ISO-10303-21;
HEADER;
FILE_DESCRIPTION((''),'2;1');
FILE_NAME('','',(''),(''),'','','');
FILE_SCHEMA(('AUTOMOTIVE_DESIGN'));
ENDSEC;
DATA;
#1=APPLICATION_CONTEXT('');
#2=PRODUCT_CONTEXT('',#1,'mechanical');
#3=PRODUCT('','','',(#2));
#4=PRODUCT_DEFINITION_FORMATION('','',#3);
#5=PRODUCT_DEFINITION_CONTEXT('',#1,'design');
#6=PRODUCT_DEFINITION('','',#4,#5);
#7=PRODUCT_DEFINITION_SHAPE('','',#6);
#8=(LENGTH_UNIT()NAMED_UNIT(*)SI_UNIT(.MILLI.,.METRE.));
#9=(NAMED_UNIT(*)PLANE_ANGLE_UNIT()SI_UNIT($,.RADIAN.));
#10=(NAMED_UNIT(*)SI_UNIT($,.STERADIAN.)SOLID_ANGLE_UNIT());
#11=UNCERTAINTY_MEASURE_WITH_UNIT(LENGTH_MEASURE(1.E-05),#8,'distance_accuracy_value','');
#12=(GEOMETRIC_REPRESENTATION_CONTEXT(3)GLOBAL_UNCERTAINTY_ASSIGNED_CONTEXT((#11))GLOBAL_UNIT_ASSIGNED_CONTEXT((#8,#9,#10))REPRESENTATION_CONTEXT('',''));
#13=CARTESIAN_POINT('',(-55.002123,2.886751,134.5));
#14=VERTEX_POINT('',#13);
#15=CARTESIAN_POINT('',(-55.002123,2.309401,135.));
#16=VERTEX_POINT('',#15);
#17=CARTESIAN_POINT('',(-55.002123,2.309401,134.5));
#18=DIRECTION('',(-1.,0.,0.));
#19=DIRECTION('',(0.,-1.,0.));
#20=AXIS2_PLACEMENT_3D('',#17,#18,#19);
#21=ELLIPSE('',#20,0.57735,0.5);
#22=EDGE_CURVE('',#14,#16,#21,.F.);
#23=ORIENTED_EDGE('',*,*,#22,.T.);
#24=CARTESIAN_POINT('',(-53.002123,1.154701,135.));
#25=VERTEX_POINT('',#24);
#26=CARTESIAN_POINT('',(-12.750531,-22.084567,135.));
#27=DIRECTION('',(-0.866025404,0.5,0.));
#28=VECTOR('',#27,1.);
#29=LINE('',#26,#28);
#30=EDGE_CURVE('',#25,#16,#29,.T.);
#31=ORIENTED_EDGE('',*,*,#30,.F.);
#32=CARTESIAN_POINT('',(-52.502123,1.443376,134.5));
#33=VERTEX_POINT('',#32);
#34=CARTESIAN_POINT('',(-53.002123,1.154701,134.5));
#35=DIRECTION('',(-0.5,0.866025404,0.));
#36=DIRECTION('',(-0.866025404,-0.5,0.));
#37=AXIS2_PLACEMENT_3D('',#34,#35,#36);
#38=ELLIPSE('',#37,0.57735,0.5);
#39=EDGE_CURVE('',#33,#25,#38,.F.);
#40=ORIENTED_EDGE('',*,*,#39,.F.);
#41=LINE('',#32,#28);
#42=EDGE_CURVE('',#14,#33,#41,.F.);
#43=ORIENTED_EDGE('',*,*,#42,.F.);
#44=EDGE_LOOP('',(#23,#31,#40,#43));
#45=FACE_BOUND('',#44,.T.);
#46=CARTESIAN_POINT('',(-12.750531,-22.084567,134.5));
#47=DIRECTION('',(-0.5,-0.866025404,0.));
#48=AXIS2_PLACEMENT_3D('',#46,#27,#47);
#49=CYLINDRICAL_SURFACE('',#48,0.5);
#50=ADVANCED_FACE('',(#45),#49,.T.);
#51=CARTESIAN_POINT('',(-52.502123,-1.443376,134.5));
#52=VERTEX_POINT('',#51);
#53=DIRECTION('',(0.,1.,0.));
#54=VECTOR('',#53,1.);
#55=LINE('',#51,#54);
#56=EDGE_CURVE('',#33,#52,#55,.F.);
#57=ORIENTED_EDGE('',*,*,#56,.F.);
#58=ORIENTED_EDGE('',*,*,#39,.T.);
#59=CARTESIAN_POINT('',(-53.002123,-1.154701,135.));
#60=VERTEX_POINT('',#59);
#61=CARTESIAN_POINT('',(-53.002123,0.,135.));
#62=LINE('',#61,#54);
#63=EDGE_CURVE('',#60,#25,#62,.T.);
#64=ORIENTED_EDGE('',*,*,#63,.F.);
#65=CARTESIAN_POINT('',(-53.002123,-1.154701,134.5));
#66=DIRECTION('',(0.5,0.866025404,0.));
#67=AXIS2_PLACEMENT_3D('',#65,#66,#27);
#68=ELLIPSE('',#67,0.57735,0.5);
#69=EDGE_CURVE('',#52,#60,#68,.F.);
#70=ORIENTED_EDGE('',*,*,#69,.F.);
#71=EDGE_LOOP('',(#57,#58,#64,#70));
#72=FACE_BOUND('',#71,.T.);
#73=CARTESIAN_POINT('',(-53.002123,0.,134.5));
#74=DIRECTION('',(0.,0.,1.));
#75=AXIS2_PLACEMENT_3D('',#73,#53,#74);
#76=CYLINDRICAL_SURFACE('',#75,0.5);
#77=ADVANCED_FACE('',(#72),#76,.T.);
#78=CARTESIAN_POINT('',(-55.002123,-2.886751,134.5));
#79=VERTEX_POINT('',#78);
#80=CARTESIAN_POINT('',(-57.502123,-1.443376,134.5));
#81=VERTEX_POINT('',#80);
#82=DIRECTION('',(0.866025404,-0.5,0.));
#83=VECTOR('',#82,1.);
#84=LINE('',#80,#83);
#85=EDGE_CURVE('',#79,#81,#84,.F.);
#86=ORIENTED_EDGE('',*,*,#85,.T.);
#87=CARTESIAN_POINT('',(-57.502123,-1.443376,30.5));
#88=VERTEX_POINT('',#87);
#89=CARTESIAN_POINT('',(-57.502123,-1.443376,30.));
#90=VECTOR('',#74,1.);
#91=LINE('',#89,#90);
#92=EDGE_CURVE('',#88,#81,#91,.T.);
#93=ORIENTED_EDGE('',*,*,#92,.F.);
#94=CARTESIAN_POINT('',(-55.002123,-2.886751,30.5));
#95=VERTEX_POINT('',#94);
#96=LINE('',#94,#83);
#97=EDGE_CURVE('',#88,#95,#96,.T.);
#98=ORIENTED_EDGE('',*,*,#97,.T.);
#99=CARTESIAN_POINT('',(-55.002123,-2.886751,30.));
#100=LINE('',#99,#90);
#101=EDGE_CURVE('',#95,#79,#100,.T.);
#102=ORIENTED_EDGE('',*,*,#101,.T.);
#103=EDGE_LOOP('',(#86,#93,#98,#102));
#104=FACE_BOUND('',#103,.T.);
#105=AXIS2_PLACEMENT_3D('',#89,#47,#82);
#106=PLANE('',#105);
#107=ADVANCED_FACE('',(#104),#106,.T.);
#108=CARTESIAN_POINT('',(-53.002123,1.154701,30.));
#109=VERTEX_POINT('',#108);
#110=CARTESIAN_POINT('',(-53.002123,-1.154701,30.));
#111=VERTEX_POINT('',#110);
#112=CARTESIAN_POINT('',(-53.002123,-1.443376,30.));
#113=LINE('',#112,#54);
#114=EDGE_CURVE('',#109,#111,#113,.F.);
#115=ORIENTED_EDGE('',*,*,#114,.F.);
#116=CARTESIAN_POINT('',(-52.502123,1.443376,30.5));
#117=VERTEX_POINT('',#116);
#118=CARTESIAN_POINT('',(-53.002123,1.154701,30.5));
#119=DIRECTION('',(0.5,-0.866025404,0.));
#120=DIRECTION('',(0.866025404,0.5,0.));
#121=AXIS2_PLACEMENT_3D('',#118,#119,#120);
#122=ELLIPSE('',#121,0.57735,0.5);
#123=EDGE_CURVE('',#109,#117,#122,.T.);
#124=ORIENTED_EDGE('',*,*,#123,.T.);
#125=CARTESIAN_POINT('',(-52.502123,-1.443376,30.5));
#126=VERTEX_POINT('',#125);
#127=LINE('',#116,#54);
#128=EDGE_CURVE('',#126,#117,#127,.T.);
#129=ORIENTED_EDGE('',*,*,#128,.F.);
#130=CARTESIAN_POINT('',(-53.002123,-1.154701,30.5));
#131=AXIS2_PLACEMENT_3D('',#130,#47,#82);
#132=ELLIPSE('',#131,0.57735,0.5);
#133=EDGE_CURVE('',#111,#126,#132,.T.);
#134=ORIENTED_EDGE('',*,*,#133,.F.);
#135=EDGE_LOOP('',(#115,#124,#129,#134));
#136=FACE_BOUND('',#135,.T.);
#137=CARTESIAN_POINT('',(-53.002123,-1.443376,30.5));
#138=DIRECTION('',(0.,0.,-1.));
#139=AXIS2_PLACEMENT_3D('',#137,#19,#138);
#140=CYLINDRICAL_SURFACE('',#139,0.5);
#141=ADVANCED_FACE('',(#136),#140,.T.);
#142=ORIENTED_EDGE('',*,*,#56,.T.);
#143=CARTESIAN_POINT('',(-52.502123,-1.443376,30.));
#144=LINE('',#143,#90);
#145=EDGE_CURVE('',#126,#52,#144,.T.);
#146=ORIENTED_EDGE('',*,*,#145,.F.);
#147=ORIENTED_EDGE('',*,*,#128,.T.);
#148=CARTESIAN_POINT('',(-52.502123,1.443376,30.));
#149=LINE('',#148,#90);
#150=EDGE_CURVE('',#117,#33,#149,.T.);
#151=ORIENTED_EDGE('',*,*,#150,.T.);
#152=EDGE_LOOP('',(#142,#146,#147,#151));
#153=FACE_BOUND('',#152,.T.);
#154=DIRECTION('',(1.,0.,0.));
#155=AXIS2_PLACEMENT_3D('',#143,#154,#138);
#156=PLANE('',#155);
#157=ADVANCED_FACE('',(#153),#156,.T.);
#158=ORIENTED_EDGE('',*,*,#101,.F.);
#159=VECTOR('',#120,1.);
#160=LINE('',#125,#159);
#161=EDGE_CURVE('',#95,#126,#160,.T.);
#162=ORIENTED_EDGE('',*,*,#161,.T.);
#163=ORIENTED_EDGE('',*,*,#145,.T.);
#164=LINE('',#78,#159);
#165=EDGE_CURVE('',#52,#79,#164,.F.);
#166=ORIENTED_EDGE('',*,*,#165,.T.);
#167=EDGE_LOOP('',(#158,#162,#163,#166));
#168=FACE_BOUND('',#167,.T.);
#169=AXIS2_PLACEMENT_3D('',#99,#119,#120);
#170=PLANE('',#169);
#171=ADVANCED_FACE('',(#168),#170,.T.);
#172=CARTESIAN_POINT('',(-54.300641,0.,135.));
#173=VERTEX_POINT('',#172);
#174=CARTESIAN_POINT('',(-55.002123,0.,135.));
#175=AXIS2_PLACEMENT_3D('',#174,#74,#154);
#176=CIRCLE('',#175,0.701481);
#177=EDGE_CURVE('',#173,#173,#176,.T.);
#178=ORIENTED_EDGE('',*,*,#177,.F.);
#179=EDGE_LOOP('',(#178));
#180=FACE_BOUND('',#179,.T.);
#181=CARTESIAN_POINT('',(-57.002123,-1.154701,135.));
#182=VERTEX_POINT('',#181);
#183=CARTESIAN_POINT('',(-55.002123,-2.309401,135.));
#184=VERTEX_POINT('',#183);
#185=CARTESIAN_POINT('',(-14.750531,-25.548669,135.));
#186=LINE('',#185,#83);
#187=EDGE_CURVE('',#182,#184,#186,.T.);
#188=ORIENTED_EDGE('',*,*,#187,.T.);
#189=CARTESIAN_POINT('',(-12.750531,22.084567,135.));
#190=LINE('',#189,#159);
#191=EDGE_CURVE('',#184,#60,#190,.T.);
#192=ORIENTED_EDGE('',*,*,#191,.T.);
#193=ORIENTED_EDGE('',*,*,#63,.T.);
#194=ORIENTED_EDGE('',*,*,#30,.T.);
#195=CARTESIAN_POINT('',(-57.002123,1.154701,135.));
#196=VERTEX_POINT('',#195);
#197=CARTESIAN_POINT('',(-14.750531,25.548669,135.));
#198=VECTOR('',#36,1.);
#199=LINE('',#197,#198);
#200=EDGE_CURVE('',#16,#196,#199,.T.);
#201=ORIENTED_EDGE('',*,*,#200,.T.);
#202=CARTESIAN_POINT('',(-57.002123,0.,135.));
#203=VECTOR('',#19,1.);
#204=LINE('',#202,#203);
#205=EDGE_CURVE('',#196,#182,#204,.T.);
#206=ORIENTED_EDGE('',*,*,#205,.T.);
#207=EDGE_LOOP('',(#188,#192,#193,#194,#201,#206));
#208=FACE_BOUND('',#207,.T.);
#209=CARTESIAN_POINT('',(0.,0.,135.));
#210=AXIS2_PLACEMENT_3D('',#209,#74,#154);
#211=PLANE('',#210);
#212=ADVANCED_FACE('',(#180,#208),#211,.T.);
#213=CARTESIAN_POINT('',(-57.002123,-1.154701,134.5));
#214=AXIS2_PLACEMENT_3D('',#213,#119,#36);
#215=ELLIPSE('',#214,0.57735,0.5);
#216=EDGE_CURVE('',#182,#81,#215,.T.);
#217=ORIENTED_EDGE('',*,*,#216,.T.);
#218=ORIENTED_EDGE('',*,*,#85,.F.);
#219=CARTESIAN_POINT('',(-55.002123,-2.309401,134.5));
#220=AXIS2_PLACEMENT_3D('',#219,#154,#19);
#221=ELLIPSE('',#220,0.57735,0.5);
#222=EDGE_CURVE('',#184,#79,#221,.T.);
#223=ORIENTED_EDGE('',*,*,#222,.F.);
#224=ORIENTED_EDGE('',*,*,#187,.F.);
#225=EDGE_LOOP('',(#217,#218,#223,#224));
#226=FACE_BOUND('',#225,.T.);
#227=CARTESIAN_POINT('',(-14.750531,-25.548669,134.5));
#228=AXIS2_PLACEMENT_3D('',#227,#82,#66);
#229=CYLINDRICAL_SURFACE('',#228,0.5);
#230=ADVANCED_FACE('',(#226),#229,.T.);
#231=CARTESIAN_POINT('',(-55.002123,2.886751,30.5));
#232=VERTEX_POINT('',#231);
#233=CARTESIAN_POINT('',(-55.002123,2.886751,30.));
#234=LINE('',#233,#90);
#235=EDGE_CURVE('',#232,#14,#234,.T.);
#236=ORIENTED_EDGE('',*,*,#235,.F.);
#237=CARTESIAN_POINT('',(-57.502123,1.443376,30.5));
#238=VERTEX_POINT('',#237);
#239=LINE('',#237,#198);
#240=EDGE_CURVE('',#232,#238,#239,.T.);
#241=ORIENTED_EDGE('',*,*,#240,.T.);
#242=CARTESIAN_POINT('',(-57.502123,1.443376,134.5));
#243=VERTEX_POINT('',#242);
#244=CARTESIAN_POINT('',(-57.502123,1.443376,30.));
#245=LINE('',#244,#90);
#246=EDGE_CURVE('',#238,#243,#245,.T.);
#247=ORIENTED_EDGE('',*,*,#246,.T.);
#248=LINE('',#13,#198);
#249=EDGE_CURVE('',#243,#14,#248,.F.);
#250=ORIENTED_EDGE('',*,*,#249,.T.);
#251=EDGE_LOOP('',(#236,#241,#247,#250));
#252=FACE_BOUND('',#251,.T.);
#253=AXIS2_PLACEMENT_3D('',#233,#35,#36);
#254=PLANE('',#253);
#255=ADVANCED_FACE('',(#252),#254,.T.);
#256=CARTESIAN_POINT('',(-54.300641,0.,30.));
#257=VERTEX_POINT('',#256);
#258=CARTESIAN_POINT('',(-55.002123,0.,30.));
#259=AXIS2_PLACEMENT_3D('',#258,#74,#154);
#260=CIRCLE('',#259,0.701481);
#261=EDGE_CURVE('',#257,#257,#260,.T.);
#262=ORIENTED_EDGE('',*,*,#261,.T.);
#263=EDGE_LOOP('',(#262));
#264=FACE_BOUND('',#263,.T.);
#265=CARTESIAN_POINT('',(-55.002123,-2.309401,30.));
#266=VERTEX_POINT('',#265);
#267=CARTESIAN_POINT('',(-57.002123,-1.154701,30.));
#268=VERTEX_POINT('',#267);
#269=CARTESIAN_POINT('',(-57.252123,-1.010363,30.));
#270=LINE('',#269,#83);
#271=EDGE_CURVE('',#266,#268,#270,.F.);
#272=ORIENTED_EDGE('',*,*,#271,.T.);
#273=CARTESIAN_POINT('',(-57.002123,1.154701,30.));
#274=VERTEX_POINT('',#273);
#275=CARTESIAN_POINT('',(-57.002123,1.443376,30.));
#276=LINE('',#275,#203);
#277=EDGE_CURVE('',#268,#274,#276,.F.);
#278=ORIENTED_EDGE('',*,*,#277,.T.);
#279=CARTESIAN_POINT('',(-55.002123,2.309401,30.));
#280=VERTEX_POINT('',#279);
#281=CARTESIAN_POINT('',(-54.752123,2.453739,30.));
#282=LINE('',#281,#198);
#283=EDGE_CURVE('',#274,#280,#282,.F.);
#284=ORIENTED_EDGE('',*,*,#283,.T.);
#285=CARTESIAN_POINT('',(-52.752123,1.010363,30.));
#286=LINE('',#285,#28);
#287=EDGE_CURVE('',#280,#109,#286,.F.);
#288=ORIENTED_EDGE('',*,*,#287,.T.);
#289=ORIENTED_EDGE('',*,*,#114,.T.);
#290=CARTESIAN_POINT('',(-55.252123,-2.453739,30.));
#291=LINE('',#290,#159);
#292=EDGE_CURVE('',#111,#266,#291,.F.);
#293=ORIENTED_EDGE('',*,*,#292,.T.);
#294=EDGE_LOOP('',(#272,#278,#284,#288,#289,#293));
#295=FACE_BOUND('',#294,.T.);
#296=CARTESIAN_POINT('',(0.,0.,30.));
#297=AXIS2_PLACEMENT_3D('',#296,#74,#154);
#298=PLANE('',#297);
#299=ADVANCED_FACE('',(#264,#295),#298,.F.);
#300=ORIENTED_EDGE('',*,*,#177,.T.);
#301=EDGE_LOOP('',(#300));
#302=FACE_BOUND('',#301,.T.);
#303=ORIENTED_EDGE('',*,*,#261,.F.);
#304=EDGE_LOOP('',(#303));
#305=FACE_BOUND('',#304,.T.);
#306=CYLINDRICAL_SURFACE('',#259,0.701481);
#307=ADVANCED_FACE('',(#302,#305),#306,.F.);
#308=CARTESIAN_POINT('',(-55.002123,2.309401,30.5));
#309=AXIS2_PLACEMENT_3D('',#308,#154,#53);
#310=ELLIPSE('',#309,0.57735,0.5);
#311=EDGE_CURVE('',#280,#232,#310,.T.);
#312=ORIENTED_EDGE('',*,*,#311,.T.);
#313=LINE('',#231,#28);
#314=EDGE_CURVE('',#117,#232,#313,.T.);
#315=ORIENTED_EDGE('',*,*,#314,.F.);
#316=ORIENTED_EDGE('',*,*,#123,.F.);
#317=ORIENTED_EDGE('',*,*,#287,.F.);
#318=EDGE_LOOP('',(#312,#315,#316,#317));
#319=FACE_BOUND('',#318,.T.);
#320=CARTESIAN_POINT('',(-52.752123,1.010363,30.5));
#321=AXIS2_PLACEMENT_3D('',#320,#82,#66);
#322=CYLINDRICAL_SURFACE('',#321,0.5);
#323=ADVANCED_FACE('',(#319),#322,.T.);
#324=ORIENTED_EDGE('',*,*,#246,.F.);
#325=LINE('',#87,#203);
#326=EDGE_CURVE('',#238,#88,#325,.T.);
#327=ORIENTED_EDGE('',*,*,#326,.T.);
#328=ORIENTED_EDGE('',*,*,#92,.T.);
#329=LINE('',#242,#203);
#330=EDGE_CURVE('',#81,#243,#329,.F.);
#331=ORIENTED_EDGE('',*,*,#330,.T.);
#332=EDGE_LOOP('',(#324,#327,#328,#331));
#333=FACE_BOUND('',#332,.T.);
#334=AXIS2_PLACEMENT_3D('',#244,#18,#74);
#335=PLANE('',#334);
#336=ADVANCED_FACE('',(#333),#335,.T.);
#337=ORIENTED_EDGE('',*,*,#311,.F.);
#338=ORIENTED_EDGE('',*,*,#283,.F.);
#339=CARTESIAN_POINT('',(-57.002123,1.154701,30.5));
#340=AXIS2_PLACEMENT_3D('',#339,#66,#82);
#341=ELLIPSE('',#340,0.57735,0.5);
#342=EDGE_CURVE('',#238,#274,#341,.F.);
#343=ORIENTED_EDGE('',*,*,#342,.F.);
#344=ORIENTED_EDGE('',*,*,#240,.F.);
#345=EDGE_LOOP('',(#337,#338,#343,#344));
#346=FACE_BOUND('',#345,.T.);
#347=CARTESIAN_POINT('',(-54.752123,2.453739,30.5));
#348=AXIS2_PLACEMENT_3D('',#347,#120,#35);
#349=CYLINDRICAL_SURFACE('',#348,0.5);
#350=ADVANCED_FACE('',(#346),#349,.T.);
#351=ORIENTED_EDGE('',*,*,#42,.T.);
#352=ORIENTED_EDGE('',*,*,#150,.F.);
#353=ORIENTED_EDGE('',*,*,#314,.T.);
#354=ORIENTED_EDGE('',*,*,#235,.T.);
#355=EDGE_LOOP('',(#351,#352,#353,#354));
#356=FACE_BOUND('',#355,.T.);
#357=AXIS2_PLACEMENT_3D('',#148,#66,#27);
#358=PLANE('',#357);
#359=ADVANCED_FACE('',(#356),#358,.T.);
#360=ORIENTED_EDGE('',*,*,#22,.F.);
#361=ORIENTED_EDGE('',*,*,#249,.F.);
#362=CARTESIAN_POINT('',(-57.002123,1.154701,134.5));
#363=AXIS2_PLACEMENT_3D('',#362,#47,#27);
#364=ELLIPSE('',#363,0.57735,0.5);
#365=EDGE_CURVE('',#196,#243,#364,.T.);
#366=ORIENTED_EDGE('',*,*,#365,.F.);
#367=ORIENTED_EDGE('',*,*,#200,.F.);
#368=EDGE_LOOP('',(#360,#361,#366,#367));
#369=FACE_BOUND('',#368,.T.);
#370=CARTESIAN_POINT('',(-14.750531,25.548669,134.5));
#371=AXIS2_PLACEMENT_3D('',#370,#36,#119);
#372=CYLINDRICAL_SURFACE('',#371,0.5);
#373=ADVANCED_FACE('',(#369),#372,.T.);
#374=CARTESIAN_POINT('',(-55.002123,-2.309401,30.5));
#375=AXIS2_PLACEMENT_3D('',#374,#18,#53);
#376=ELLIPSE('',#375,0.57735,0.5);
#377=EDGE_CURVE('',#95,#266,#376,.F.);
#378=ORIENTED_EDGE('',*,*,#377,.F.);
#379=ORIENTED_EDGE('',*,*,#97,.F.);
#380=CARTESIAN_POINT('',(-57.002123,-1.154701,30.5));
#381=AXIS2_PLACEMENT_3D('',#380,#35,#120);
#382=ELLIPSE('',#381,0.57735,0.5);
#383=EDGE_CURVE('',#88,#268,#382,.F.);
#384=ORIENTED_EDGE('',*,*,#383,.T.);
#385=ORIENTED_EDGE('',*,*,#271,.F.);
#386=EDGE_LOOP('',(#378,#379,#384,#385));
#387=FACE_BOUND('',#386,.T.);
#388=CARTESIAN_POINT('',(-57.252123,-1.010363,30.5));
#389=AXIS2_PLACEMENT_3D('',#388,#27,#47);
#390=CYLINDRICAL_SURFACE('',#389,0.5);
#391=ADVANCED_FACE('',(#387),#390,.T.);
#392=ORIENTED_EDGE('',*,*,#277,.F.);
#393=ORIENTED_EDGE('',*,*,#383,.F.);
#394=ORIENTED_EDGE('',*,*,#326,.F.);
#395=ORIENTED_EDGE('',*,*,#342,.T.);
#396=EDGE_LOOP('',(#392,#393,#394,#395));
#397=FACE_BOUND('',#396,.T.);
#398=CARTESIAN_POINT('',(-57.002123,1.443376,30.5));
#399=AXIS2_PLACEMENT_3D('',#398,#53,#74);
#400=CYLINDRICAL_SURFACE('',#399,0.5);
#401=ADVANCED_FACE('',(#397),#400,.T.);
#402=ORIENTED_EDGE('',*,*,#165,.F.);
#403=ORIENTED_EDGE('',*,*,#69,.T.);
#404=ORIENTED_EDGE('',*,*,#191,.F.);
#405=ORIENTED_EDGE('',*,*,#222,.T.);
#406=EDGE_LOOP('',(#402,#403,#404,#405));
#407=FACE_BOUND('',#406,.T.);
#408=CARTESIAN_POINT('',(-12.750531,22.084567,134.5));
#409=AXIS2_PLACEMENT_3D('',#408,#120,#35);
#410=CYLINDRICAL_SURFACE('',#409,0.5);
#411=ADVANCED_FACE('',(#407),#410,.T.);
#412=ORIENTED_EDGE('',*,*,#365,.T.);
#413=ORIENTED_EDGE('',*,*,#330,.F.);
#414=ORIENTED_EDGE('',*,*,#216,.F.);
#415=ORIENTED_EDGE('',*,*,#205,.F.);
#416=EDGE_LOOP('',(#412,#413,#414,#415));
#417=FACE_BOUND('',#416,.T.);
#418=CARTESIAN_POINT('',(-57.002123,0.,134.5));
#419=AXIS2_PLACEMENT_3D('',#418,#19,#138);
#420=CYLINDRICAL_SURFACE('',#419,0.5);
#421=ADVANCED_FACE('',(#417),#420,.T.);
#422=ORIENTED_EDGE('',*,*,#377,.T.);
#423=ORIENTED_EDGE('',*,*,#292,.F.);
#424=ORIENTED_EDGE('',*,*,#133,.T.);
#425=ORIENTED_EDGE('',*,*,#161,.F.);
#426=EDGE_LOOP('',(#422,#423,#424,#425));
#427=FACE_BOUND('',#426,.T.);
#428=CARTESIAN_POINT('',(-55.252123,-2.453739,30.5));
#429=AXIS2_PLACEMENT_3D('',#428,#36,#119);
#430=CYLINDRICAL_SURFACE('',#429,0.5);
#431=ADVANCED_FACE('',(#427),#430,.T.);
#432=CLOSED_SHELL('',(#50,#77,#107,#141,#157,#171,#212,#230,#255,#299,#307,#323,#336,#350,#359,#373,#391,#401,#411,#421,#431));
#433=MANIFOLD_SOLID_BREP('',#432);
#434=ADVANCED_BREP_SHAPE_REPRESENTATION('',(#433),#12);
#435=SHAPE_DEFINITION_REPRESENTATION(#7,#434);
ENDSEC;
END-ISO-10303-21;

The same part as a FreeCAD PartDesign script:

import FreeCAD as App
import Part
import Sketcher
from FreeCAD import Vector
Q = App.Units.Quantity


def edges_at(feature, points):
    """Names of the edges that pass closest to the given points."""
    edges = feature.Shape.Edges
    near = lambda p: min(range(len(edges)), key=lambda i: edges[i].distToShape(Part.Vertex(*p))[0])
    return sorted({f"Edge{near(p) + 1}" for p in points})

doc = App.newDocument("Part")
body = doc.addObject("PartDesign::Body", "Body")

# Sketch on XY plane
sketch1 = doc.addObject("Sketcher::SketchObject", "Sketch")
body.addObject(sketch1)
sketch1.AttachmentSupport = (doc.XY_Plane, [""])
sketch1.MapMode = "FlatFace"
sketch1.AttachmentOffset = App.Placement(Vector(0, 0, 135), App.Rotation())
sketch1.addGeometry(Part.LineSegment(Vector(-55, 2.9, 0), Vector(-57.5, 1.4, 0)), False)
sketch1.addGeometry(Part.LineSegment(Vector(-57.5, 1.4, 0), Vector(-57.5, -1.4, 0)), False)
sketch1.addGeometry(Part.LineSegment(Vector(-57.5, -1.4, 0), Vector(-55, -2.9, 0)), False)
sketch1.addGeometry(Part.LineSegment(Vector(-55, -2.9, 0), Vector(-52.5, -1.4, 0)), False)
sketch1.addGeometry(Part.LineSegment(Vector(-52.5, -1.4, 0), Vector(-52.5, 1.4, 0)), False)
sketch1.addGeometry(Part.LineSegment(Vector(-52.5, 1.4, 0), Vector(-55, 2.9, 0)), False)
sketch1.addConstraint(Sketcher.Constraint("Coincident", 0, 2, 1, 1))
sketch1.addConstraint(Sketcher.Constraint("Coincident", 1, 2, 2, 1))
sketch1.addConstraint(Sketcher.Constraint("Coincident", 2, 2, 3, 1))
sketch1.addConstraint(Sketcher.Constraint("Coincident", 3, 2, 4, 1))
sketch1.addConstraint(Sketcher.Constraint("Coincident", 4, 2, 5, 1))
sketch1.addConstraint(Sketcher.Constraint("Coincident", 5, 2, 0, 1))
sketch1.addConstraint(Sketcher.Constraint("Vertical", 1))
sketch1.addConstraint(Sketcher.Constraint("Vertical", 4))
sketch1.addConstraint(Sketcher.Constraint("Symmetric", 2, 2, 5, 2, -1))
sketch1.addConstraint(Sketcher.Constraint("Parallel", 0, 3))
sketch1.addConstraint(Sketcher.Constraint("Parallel", 2, 5))
sketch1.addConstraint(Sketcher.Constraint("Horizontal", 1, 2, 3, 2))
sketch1.addConstraint(Sketcher.Constraint("Horizontal", 0, 2, 4, 2))
sketch1.addConstraint(Sketcher.Constraint("Angle", 0, Q("-150 deg")))
sketch1.addConstraint(Sketcher.Constraint("DistanceX", 1, 2, 3, 2, 5.0))
sketch1.addConstraint(Sketcher.Constraint("DistanceY", 1, 2, 1, 1, 2.886751))
sketch1.addConstraint(Sketcher.Constraint("DistanceX", 0, 2, -1, 1, 57.502123))
pad1 = doc.addObject("PartDesign::Pad", "Pad")
body.addObject(pad1)
pad1.Profile = sketch1
pad1.Length = 105
pad1.Reversed = True
doc.recompute()

fillet = doc.addObject("PartDesign::Fillet", "Fillet")
body.addObject(fillet)
fillet.Base = (pad1, edges_at(pad1, [
    (-57.502, 0, 30),
    (-56.252, -2.165, 30),
    (-53.752, -2.165, 30),
    (-52.502, 0, 30),
    (-53.752, 2.165, 30),
    (-52.502, 0, 135),
    (-53.752, -2.165, 135),
    (-56.252, -2.165, 135),
    (-57.502, 0, 135),
    (-56.252, 2.165, 135),
    (-53.752, 2.165, 135),
    (-56.252, 2.165, 30),
]))
fillet.Radius = 0.5

# Sketch on XY plane
sketch2 = doc.addObject("Sketcher::SketchObject", "Sketch001")
body.addObject(sketch2)
sketch2.AttachmentSupport = (doc.XY_Plane, [""])
sketch2.MapMode = "FlatFace"
sketch2.AttachmentOffset = App.Placement(Vector(0, 0, 135), App.Rotation())
sketch2.addGeometry(Part.Circle(Vector(-55, 0, 0), Vector(0, 0, 1), 0.7), False)
sketch2.addConstraint(Sketcher.Constraint("PointOnObject", 0, 3, -1))
sketch2.addConstraint(Sketcher.Constraint("Diameter", 0, 1.402963))
sketch2.addConstraint(Sketcher.Constraint("DistanceX", 0, 3, -1, 1, 55.002123))
pocket1 = doc.addObject("PartDesign::Pocket", "Pocket")
body.addObject(pocket1)
pocket1.Profile = sketch2
pocket1.Type = "ThroughAll"

doc.recompute()
